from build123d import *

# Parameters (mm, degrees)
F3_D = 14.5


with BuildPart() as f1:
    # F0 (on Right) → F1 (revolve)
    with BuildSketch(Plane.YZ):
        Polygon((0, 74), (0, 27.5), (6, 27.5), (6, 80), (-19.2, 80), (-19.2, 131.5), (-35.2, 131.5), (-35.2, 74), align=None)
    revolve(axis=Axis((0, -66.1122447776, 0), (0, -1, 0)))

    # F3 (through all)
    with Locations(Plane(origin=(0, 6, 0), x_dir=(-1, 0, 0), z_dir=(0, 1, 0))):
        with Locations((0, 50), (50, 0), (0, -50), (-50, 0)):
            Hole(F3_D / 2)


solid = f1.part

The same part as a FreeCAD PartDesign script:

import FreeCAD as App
import Part
import Sketcher

V = App.Vector
Q = App.Units.Quantity


def add_polygon(sketch, points):
    """Adds a closed chain of lines whose ends are joined by coincident constraints."""
    first, n = sketch.GeometryCount, len(points)
    for a, b in zip(points, points[1:] + points[:1]):
        sketch.addGeometry(Part.LineSegment(App.Vector(*a, 0), App.Vector(*b, 0)), False)
    for i in range(n):
        sketch.addConstraint(Sketcher.Constraint("Coincident", first + i, 2, first + (i + 1) % n, 1))

doc = App.newDocument("Part")
body = doc.addObject("PartDesign::Body", "Body")

# Sketch on YZ plane
sketch1 = body.newObject("Sketcher::SketchObject", "Sketch")
sketch1.AttachmentSupport = (doc.getObject("YZ_Plane"), [""])
sketch1.MapMode = "FlatFace"
add_polygon(sketch1, [(0, 74), (0, 28), (6, 28), (6, 80), (-19, 80), (-19, 132), (-35, 132), (-35, 74)])  # lines 0-7
sketch1.addConstraint(Sketcher.Constraint("Vertical", 0))
sketch1.addConstraint(Sketcher.Constraint("Horizontal", 1))
sketch1.addConstraint(Sketcher.Constraint("Vertical", 2))
sketch1.addConstraint(Sketcher.Constraint("Horizontal", 3))
sketch1.addConstraint(Sketcher.Constraint("Vertical", 4))
sketch1.addConstraint(Sketcher.Constraint("Horizontal", 5))
sketch1.addConstraint(Sketcher.Constraint("Vertical", 6))
sketch1.addConstraint(Sketcher.Constraint("Horizontal", 7))
sketch1.addConstraint(Sketcher.Constraint("PointOnObject", 0, 2, -2))
sketch1.addConstraint(Sketcher.Constraint("DistanceX", 1, 1, 1, 2, Q("6 mm")))
sketch1.addConstraint(Sketcher.Constraint("DistanceX", 5, 2, 5, 1, Q("16 mm")))
sketch1.addConstraint(Sketcher.Constraint("DistanceX", 3, 2, 3, 1, Q("25.2 mm")))
sketch1.addConstraint(Sketcher.Constraint("DistanceY", 0, 2, 0, 1, Q("46.5 mm")))
sketch1.addConstraint(Sketcher.Constraint("DistanceY", 2, 1, 2, 2, Q("52.5 mm")))
sketch1.addConstraint(Sketcher.Constraint("DistanceY", 4, 1, 4, 2, Q("51.5 mm")))
sketch1.addConstraint(Sketcher.Constraint("DistanceY", -1, 1, 2, 2, Q("80 mm")))
revolution = body.newObject("PartDesign::Revolution", "Revolution")
revolution.Profile = sketch1
revolution.ReferenceAxis = (sketch1, ["H_Axis"])
revolution.Angle = 360

# Sketch on XZ plane
sketch2 = body.newObject("Sketcher::SketchObject", "Sketch001")
sketch2.AttachmentSupport = (doc.getObject("XZ_Plane"), [""])
sketch2.MapMode = "FlatFace"
sketch2.AttachmentOffset = App.Placement(V(0, 0, -6), App.Rotation())
sketch2.addGeometry(Part.Circle(V(0, 50, 0), V(0, 0, 1), 7), False)
sketch2.addGeometry(Part.Circle(V(-50, 0, 0), V(0, 0, 1), 7), False)
sketch2.addGeometry(Part.Circle(V(0, -50, 0), V(0, 0, 1), 7), False)
sketch2.addGeometry(Part.Circle(V(50, 0, 0), V(0, 0, 1), 7), False)
sketch2.addConstraint(Sketcher.Constraint("Equal", 0, 1))
sketch2.addConstraint(Sketcher.Constraint("Equal", 1, 2))
sketch2.addConstraint(Sketcher.Constraint("Equal", 2, 3))
sketch2.addConstraint(Sketcher.Constraint("Symmetric", 0, 3, 2, 3, -1, 1))
sketch2.addConstraint(Sketcher.Constraint("Symmetric", 1, 3, 3, 3, -1, 1))
sketch2.addConstraint(Sketcher.Constraint("PointOnObject", 0, 3, -2))
sketch2.addConstraint(Sketcher.Constraint("PointOnObject", 1, 3, -1))
sketch2.addConstraint(Sketcher.Constraint("Diameter", 0, Q("14.5 mm")))
sketch2.addConstraint(Sketcher.Constraint("DistanceY", -1, 1, 0, 3, Q("50 mm")))
sketch2.addConstraint(Sketcher.Constraint("DistanceX", 1, 3, -1, 1, Q("50 mm")))
doc.recompute()
hole = body.newObject("PartDesign::Hole", "Hole")
hole.Profile = sketch2
hole.ThreadType = "None"
hole.Diameter = 14.5
hole.DepthType = "ThroughAll"
hole.Reversed = True

doc.recompute()
